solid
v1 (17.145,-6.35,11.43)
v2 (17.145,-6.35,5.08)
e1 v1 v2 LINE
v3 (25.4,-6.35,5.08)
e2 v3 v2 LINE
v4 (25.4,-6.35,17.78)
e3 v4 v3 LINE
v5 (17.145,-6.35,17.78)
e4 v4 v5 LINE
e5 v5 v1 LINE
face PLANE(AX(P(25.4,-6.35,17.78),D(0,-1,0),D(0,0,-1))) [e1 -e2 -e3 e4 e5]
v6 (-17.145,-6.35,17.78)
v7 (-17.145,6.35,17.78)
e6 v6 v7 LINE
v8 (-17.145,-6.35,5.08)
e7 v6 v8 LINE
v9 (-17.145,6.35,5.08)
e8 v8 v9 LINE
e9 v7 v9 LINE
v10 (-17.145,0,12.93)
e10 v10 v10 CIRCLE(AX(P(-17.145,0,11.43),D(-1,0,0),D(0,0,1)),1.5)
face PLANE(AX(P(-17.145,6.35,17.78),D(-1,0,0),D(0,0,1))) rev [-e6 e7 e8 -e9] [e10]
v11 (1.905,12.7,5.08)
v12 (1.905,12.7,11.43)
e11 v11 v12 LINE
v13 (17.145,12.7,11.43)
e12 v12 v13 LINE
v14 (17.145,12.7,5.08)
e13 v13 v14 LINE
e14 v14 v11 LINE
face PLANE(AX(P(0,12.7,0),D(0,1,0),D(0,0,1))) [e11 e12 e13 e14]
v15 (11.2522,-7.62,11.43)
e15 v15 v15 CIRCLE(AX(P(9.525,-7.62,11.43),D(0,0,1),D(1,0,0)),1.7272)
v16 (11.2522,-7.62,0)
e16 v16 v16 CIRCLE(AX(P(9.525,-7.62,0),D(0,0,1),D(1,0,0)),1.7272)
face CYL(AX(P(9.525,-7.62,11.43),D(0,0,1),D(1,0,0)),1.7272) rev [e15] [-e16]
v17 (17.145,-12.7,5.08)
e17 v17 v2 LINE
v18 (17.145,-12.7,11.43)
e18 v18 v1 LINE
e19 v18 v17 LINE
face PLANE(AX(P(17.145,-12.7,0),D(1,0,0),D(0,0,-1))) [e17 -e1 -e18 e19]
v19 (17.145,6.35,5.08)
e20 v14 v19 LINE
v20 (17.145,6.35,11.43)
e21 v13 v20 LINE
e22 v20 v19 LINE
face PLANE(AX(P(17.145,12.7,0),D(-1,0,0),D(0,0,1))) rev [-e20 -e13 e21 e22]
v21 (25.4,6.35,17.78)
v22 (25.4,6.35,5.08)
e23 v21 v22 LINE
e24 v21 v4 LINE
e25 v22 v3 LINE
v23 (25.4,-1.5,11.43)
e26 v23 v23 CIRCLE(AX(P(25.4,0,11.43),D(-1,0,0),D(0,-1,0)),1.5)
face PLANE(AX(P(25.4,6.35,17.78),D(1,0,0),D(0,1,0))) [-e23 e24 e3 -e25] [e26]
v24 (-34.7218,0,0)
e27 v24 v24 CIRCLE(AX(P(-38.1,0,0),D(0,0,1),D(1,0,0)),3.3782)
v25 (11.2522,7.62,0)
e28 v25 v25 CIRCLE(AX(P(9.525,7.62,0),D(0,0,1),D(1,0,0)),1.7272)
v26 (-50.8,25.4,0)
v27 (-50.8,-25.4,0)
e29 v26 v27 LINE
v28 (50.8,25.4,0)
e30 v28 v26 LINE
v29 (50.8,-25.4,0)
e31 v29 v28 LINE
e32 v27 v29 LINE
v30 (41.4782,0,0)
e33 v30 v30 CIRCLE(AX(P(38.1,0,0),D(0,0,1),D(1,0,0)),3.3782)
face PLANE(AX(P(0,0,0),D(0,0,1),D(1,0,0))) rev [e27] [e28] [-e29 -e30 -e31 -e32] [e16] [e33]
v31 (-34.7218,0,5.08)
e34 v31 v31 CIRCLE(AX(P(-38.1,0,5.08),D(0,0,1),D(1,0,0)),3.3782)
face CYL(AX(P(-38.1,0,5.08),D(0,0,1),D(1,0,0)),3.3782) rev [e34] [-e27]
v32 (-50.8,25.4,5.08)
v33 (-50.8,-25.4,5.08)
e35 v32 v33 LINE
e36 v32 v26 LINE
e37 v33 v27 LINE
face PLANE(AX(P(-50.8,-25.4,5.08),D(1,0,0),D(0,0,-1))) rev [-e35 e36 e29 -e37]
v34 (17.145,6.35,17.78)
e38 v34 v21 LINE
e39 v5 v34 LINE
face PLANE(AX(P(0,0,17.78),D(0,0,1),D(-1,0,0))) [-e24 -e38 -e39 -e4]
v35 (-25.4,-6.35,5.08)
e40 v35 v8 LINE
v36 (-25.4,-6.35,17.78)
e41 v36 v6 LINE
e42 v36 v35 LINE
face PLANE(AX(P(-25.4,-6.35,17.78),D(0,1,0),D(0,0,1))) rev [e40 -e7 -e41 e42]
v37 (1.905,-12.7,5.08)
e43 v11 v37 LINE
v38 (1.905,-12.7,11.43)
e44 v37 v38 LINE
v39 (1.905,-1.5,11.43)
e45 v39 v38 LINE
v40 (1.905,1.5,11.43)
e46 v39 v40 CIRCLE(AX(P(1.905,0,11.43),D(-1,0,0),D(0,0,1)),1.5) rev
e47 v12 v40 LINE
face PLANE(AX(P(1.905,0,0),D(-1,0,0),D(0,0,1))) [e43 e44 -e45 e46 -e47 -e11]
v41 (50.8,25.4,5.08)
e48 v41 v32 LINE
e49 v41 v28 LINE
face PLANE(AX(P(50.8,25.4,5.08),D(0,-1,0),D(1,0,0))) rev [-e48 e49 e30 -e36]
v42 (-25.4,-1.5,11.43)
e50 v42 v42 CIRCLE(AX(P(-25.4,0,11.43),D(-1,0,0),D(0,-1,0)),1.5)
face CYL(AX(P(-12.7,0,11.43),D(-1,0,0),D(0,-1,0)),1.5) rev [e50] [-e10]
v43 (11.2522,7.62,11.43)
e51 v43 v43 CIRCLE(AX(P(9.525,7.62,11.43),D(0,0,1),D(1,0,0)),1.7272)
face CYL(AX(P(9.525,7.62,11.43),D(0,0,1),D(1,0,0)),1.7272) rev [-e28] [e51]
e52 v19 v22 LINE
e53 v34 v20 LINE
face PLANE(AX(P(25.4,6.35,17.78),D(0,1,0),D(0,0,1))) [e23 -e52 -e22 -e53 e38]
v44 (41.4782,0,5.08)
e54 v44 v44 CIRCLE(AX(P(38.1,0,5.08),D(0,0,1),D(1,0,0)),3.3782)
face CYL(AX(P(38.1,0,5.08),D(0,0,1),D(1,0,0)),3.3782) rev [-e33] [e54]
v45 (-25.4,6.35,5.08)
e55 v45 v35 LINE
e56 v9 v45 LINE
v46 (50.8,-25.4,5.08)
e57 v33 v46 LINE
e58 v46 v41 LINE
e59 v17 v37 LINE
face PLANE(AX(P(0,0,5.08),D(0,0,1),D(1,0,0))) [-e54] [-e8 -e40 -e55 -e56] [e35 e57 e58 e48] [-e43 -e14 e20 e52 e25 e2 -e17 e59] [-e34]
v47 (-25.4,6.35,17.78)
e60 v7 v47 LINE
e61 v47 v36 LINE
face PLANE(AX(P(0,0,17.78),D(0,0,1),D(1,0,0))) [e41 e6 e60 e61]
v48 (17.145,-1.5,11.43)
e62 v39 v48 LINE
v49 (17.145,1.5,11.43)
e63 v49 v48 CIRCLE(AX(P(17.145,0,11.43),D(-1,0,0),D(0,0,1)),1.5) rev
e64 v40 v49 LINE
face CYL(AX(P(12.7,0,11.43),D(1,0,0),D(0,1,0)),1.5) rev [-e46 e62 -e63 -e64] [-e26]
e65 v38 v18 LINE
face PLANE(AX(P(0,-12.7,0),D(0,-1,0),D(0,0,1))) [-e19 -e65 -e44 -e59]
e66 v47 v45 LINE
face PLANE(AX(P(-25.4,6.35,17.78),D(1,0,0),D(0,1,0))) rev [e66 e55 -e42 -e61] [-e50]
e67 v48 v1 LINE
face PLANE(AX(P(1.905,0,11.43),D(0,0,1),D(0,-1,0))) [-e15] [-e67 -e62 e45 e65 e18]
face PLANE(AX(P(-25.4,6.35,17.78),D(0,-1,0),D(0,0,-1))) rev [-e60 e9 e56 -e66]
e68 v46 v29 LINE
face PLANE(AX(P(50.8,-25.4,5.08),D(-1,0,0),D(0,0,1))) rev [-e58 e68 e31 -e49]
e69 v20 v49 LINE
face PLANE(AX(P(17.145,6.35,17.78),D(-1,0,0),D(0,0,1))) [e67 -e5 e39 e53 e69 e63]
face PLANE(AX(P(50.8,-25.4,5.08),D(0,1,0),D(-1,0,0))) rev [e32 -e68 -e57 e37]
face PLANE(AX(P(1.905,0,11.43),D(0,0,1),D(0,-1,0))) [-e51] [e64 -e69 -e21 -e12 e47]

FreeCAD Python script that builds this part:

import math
import FreeCAD as App
import Part
import Sketcher

V = App.Vector
Q = App.Units.Quantity

doc = App.newDocument("Part")
body = doc.addObject("PartDesign::Body", "Body")

# Sketch on XY plane
sketch1 = doc.addObject("Sketcher::SketchObject", "Sketch")
body.addObject(sketch1)
sketch1.AttachmentSupport = (doc.XY_Plane, [""])
sketch1.MapMode = "FlatFace"
sketch1.addGeometry([
    Part.LineSegment(V(-50.8, 25.4, 0), V(-50.8, -25.4, 0)),
    Part.LineSegment(V(-50.8, -25.4, 0), V(50.8, -25.4, 0)),
    Part.LineSegment(V(50.8, -25.4, 0), V(50.8, 25.4, 0)),
    Part.LineSegment(V(50.8, 25.4, 0), V(-50.8, 25.4, 0)),
], False)
sketch1.addConstraint([
    Sketcher.Constraint("Coincident", 0, 2, 1, 1),
    Sketcher.Constraint("Coincident", 1, 2, 2, 1),
    Sketcher.Constraint("Coincident", 2, 2, 3, 1),
    Sketcher.Constraint("Coincident", 3, 2, 0, 1),
    Sketcher.Constraint("Vertical", 0),
    Sketcher.Constraint("Horizontal", 1),
    Sketcher.Constraint("Vertical", 2),
    Sketcher.Constraint("Horizontal", 3),
    Sketcher.Constraint("Symmetric", 0, 2, 2, 2, -1, 1),
    Sketcher.Constraint("DistanceX", 1, 1, 1, 2, Q("4 in")),
    Sketcher.Constraint("DistanceY", 0, 2, 0, 1, Q("2 in")),
])
pad1 = doc.addObject("PartDesign::Pad", "Pad")
body.addObject(pad1)
pad1.Profile = sketch1
pad1.Length = Q("0.2 in")

# Sketch on XY plane
sketch2 = doc.addObject("Sketcher::SketchObject", "Sketch001")
body.addObject(sketch2)
sketch2.AttachmentSupport = (doc.XY_Plane, [""])
sketch2.MapMode = "FlatFace"
sketch2.AttachmentOffset = App.Placement(V(0, 0, 0.2 * 25.4), App.Rotation())
sketch2.addGeometry([
    Part.Circle(V(38.1, 0, 0), V(0, 0, 1), 3.3782),
    Part.Circle(V(-38.1, 0, 0), V(0, 0, 1), 3.3782),
], False)
sketch2.addConstraint([
    Sketcher.Constraint("Equal", 0, 1),
    Sketcher.Constraint("Symmetric", 0, 3, 1, 3, -1, 1),
    Sketcher.Constraint("PointOnObject", 0, 3, -1),
    Sketcher.Constraint("Diameter", 0, Q("0.266 in")),
    Sketcher.Constraint("DistanceX", 1, 3, 0, 3, Q("3 in")),
])
doc.recompute()
hole = doc.addObject("PartDesign::Hole", "Hole")
body.addObject(hole)
hole.Profile = sketch2
hole.ThreadType = "None"
hole.Diameter = Q("0.266 in")
hole.DepthType = "ThroughAll"

# Sketch on XY plane
sketch3 = doc.addObject("Sketcher::SketchObject", "Sketch002")
body.addObject(sketch3)
sketch3.AttachmentSupport = (doc.XY_Plane, [""])
sketch3.MapMode = "FlatFace"
sketch3.AttachmentOffset = App.Placement(V(0, 0, 0.2 * 25.4), App.Rotation())
sketch3.addGeometry([
    Part.LineSegment(V(-25.4, 6.35, 0), V(-25.4, -6.35, 0)),
    Part.LineSegment(V(-25.4, -6.35, 0), V(-17.145, -6.35, 0)),
    Part.LineSegment(V(-17.145, -6.35, 0), V(-17.145, 6.35, 0)),
    Part.LineSegment(V(-17.145, 6.35, 0), V(-25.4, 6.35, 0)),
], False)
sketch3.addConstraint([
    Sketcher.Constraint("Coincident", 0, 2, 1, 1),
    Sketcher.Constraint("Coincident", 1, 2, 2, 1),
    Sketcher.Constraint("Coincident", 2, 2, 3, 1),
    Sketcher.Constraint("Coincident", 3, 2, 0, 1),
    Sketcher.Constraint("Vertical", 0),
    Sketcher.Constraint("Horizontal", 1),
    Sketcher.Constraint("Vertical", 2),
    Sketcher.Constraint("Horizontal", 3),
    Sketcher.Constraint("DistanceY", 0, 2, 0, 1, Q("0.5 in")),
    Sketcher.Constraint("DistanceX", 0, 2, -1, 1, Q("1 in")),
    Sketcher.Constraint("DistanceX", 1, 1, 1, 2, Q("0.325 in")),
    Sketcher.Constraint("DistanceY", 0, 2, -1, 1, Q("0.25 in")),
])
pad2 = doc.addObject("PartDesign::Pad", "Pad001")
body.addObject(pad2)
pad2.Profile = sketch3
pad2.Length = Q("0.5 in")

# Sketch on YZ plane
sketch4 = doc.addObject("Sketcher::SketchObject", "Sketch003")
body.addObject(sketch4)
sketch4.AttachmentSupport = (doc.YZ_Plane, [""])
sketch4.MapMode = "FlatFace"
sketch4.AttachmentOffset = App.Placement(V(0, 0, -1 * 25.4), App.Rotation())
sketch4.addGeometry(Part.Circle(V(0, 11.43, 0), V(0, 0, 1), 1.5), False)
sketch4.addConstraint([
    Sketcher.Constraint("PointOnObject", 0, 3, -2),
    Sketcher.Constraint("Diameter", 0, Q("3 mm")),
    Sketcher.Constraint("DistanceY", -1, 1, 0, 3, Q("0.45 in")),
])
pocket1 = doc.addObject("PartDesign::Pocket", "Pocket")
body.addObject(pocket1)
pocket1.Profile = sketch4
pocket1.Length = Q("0.5 in")
pocket1.Reversed = True
doc.recompute()

mirrored = doc.addObject("PartDesign::Mirrored", "Mirrored")
body.addObject(mirrored)
mirrored.Originals = [pad2, pocket1]
mirrored.MirrorPlane = (doc.YZ_Plane, [""])
body.Tip = mirrored

# Sketch on YZ plane
sketch5 = doc.addObject("Sketcher::SketchObject", "Sketch004")
body.addObject(sketch5)
sketch5.AttachmentSupport = (doc.YZ_Plane, [""])
sketch5.MapMode = "FlatFace"
sketch5.AttachmentOffset = App.Placement(V(0, 0, 0.675 * 25.4), App.Rotation())
sketch5.addGeometry([
    Part.LineSegment(V(1.5, 11.43, 0), V(6.35, 11.43, 0)),  # 0
    Part.LineSegment(V(6.35, 11.43, 0), V(6.35, 5.08, 0)),  # 1
    Part.LineSegment(V(6.35, 5.08, 0), V(-6.35, 5.08, 0)),  # 2
    Part.LineSegment(V(-6.35, 5.08, 0), V(-6.35, 11.43, 0)),  # 3
    Part.LineSegment(V(-6.35, 11.43, 0), V(-1.5, 11.43, 0)),  # 4
    Part.ArcOfCircle(Part.Circle(V(0, 11.43, 0), V(0, 0, 1), 1.5), math.radians(180), math.radians(360)),  # 5
], False)
sketch5.addConstraint([
    Sketcher.Constraint("Coincident", 0, 2, 1, 1),
    Sketcher.Constraint("Coincident", 1, 2, 2, 1),
    Sketcher.Constraint("Coincident", 2, 2, 3, 1),
    Sketcher.Constraint("Coincident", 3, 2, 4, 1),
    Sketcher.Constraint("Coincident", 4, 2, 5, 1),
    Sketcher.Constraint("Coincident", 5, 2, 0, 1),
    Sketcher.Constraint("Horizontal", 0),
    Sketcher.Constraint("Vertical", 1),
    Sketcher.Constraint("Horizontal", 2),
    Sketcher.Constraint("Vertical", 3),
    Sketcher.Constraint("Horizontal", 4),
    Sketcher.Constraint("Symmetric", 0, 2, 3, 2, -2),
    Sketcher.Constraint("PointOnObject", 5, 3, -2),
    Sketcher.Constraint("Horizontal", 5, 3, 0, 2),
    Sketcher.Constraint("DistanceX", 2, 2, 2, 1, Q("0.5 in")),
    Sketcher.Constraint("DistanceY", 1, 2, 1, 1, Q("0.25 in")),
    Sketcher.Constraint("DistanceY", -1, 1, 1, 2, Q("0.2 in")),
    Sketcher.Constraint("Radius", 5, Q("1.5 mm")),
])
pad3 = doc.addObject("PartDesign::Pad", "Pad002")
body.addObject(pad3)
pad3.Profile = sketch5
pad3.Length = Q("0.6 in")
pad3.Reversed = True

# Sketch on XZ plane
sketch6 = doc.addObject("Sketcher::SketchObject", "Sketch005")
body.addObject(sketch6)
sketch6.AttachmentSupport = (doc.XZ_Plane, [""])
sketch6.MapMode = "FlatFace"
sketch6.AttachmentOffset = App.Placement(V(0, 0, -0.25 * 25.4), App.Rotation())
sketch6.addGeometry([
    Part.LineSegment(V(1.905, 5.08, 0), V(1.905, 11.43, 0)),
    Part.LineSegment(V(1.905, 11.43, 0), V(17.145, 11.43, 0)),
    Part.LineSegment(V(17.145, 11.43, 0), V(17.145, 5.08, 0)),
    Part.LineSegment(V(17.145, 5.08, 0), V(1.905, 5.08, 0)),
], False)
sketch6.addConstraint([
    Sketcher.Constraint("Coincident", 0, 2, 1, 1),
    Sketcher.Constraint("Coincident", 1, 2, 2, 1),
    Sketcher.Constraint("Coincident", 2, 2, 3, 1),
    Sketcher.Constraint("Coincident", 3, 2, 0, 1),
    Sketcher.Constraint("Vertical", 0),
    Sketcher.Constraint("Horizontal", 1),
    Sketcher.Constraint("Vertical", 2),
    Sketcher.Constraint("Horizontal", 3),
    Sketcher.Constraint("DistanceX", 1, 1, 1, 2, Q("0.6 in")),
    Sketcher.Constraint("DistanceY", 0, 1, 0, 2, Q("0.25 in")),
    Sketcher.Constraint("DistanceY", -1, 1, 2, 2, Q("0.2 in")),
    Sketcher.Constraint("DistanceX", -1, 1, 0, 2, Q("0.075 in")),
])
pad4 = doc.addObject("PartDesign::Pad", "Pad003")
body.addObject(pad4)
pad4.Profile = sketch6
pad4.Length = Q("0.25 in")
pad4.Reversed = True
doc.recompute()

mirrored2 = doc.addObject("PartDesign::Mirrored", "Mirrored001")
body.addObject(mirrored2)
mirrored2.Originals = [pad4]
mirrored2.MirrorPlane = (doc.XZ_Plane, [""])
body.Tip = mirrored2

# Sketch on XY plane
sketch7 = doc.addObject("Sketcher::SketchObject", "Sketch006")
body.addObject(sketch7)
sketch7.AttachmentSupport = (doc.XY_Plane, [""])
sketch7.MapMode = "FlatFace"
sketch7.AttachmentOffset = App.Placement(V(0, 0, 0.45 * 25.4), App.Rotation())
sketch7.addGeometry([
    Part.Circle(V(9.525, -7.62, 0), V(0, 0, 1), 1.7272),
    Part.Circle(V(9.525, 7.62, 0), V(0, 0, 1), 1.7272),
], False)
sketch7.addConstraint([
    Sketcher.Constraint("Equal", 0, 1),
    Sketcher.Constraint("Symmetric", 0, 3, 1, 3, -1),
    Sketcher.Constraint("Diameter", 0, Q("0.136 in")),
    Sketcher.Constraint("DistanceY", 0, 3, -1, 1, Q("0.3 in")),
    Sketcher.Constraint("DistanceX", -1, 1, 0, 3, Q("0.375 in")),
])
doc.recompute()
hole2 = doc.addObject("PartDesign::Hole", "Hole001")
body.addObject(hole2)
hole2.Profile = sketch7
hole2.ThreadType = "None"
hole2.Diameter = Q("0.136 in")
hole2.DepthType = "ThroughAll"

doc.recompute()
